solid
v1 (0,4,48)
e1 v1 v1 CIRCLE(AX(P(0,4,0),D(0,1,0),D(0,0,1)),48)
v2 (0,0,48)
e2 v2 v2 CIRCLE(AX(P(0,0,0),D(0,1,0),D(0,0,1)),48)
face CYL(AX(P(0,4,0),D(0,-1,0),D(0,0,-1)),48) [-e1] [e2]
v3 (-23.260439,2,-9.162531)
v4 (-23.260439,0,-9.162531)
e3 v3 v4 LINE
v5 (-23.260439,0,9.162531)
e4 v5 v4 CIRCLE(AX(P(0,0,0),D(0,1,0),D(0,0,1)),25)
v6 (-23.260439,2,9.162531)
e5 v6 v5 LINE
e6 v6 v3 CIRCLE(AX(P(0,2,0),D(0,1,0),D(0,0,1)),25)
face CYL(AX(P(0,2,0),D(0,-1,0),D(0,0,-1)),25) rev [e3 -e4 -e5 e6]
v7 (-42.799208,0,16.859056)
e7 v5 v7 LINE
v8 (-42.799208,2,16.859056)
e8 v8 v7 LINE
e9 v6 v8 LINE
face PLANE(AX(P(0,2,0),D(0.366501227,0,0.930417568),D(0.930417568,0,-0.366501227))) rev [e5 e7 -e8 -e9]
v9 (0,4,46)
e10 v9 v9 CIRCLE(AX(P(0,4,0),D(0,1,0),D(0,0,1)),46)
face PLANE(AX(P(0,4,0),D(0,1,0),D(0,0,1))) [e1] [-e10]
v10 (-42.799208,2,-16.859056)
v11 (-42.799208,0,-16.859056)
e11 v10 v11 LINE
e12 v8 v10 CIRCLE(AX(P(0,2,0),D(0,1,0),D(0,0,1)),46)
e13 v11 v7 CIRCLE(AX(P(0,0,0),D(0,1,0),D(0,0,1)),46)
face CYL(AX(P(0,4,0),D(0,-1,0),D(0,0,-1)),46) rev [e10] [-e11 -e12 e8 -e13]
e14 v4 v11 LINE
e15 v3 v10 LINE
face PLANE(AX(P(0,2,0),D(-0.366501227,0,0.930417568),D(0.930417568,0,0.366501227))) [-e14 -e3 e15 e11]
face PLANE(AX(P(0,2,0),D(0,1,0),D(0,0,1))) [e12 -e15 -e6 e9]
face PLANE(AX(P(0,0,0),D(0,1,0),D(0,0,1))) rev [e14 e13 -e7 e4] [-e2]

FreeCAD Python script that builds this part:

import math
import FreeCAD as App
import Part
import Sketcher
Q = App.Units.Quantity

doc = App.newDocument("Part")
body = doc.addObject("PartDesign::Body", "Body")

# Sketch on XZ plane
sketch1 = body.newObject("Sketcher::SketchObject", "Sketch")
sketch1.AttachmentSupport = (doc.getObject("XZ_Plane"), [""])
sketch1.MapMode = "FlatFace"
sketch1.addGeometry([
    Part.Circle(App.Vector(0, 0, 0), App.Vector(0, 0, 1), 48),
    Part.Circle(App.Vector(0, 0, 0), App.Vector(0, 0, 1), 46),
], False)
sketch1.addConstraint([
    Sketcher.Constraint("Coincident", 0, 3, -1, 1),
    Sketcher.Constraint("Coincident", 1, 3, -1, 1),
    Sketcher.Constraint("Diameter", 0, 96.0),
    Sketcher.Constraint("Diameter", 1, 92.0),
])
pad1 = body.newObject("PartDesign::Pad", "Pad")
pad1.Profile = sketch1
pad1.Length = 4
pad1.Reversed = True

# Sketch on XZ plane
sketch2 = body.newObject("Sketcher::SketchObject", "Sketch001")
sketch2.AttachmentSupport = (doc.getObject("XZ_Plane"), [""])
sketch2.MapMode = "FlatFace"
sketch2.addGeometry([
    Part.ArcOfCircle(Part.Circle(App.Vector(0, 0, 0), App.Vector(0, 0, 1), 25), math.radians(0), math.radians(158.5)),  # 0
    Part.LineSegment(App.Vector(-23.260439, 9.162531, 0), App.Vector(-42.799208, 16.859056, 0)),  # 1
    Part.ArcOfCircle(Part.Circle(App.Vector(0, 0, 0), App.Vector(0, 0, 1), 46), math.radians(0), math.radians(158.5)),  # 2
    Part.ArcOfCircle(Part.Circle(App.Vector(0, 0, 0), App.Vector(0, 0, 1), 46), math.radians(-158.5), math.radians(0)),  # 3
    Part.LineSegment(App.Vector(-42.799208, -16.859056, 0), App.Vector(-23.260439, -9.162531, 0)),  # 4
    Part.ArcOfCircle(Part.Circle(App.Vector(0, 0, 0), App.Vector(0, 0, 1), 25), math.radians(-158.5), math.radians(0)),  # 5
], False)
sketch2.addConstraint([
    Sketcher.Constraint("Coincident", 0, 2, 1, 1),
    Sketcher.Constraint("Coincident", 1, 2, 2, 2),
    Sketcher.Constraint("Tangent", 2, 1, 3, 2),
    Sketcher.Constraint("Coincident", 3, 1, 4, 1),
    Sketcher.Constraint("Coincident", 4, 2, 5, 1),
    Sketcher.Constraint("Tangent", 5, 2, 0, 1),
    Sketcher.Constraint("Coincident", 0, 3, -1, 1),
    Sketcher.Constraint("Coincident", 2, 3, -1, 1),
    Sketcher.Constraint("Equal", 2, 3),
    Sketcher.Constraint("Equal", 0, 5),
    Sketcher.Constraint("PointOnObject", 2, 1, -1),
    Sketcher.Constraint("PointOnObject", 5, 2, -1),
    Sketcher.Constraint("Vertical", 1, 2, 3, 1),
    Sketcher.Constraint("Vertical", 0, 2, 4, 2),
    Sketcher.Constraint("Radius", 0, 25.0),
    Sketcher.Constraint("Radius", 2, 46.0),
    Sketcher.Constraint("Angle", 1, Q("158.5 deg")),
    Sketcher.Constraint("DistanceX", 0, 2, -1, 1, 23.260439),
])
pad2 = body.newObject("PartDesign::Pad", "Pad001")
pad2.Profile = sketch2
pad2.Length = 2
pad2.Reversed = True

doc.recompute()
